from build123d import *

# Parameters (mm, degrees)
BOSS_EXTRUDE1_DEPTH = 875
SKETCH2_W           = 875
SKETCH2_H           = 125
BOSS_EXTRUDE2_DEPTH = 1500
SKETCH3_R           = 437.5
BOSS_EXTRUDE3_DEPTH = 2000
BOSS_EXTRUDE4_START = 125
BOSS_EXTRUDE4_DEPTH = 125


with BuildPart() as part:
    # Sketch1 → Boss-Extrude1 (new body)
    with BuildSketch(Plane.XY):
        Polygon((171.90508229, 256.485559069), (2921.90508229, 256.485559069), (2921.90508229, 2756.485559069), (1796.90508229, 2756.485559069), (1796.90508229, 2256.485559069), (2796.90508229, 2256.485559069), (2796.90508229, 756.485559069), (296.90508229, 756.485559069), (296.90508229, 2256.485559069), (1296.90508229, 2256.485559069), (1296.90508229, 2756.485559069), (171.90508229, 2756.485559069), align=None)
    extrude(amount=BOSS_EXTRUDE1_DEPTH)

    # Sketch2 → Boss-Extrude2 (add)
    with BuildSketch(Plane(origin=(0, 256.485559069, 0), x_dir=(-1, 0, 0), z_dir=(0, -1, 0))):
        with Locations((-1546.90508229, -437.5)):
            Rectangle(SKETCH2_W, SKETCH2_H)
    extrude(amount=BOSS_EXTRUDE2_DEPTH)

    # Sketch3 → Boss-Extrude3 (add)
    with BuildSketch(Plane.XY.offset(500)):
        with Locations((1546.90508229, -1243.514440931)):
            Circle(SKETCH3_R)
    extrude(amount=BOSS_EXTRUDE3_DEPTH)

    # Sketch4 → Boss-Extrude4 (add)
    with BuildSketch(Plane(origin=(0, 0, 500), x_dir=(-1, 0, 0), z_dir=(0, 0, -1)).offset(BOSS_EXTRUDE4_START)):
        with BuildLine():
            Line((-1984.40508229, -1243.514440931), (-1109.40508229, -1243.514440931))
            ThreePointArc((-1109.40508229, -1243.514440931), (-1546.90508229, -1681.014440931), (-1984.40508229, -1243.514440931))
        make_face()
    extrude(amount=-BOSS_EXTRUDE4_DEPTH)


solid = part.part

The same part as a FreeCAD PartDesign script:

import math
import FreeCAD as App
import Part
import Sketcher
from FreeCAD import Vector
Q = App.Units.Quantity


def add_polygon(sketch, points):
    """Adds a closed chain of lines whose ends are joined by coincident constraints."""
    first, n = sketch.GeometryCount, len(points)
    for a, b in zip(points, points[1:] + points[:1]):
        sketch.addGeometry(Part.LineSegment(App.Vector(*a, 0), App.Vector(*b, 0)), False)
    for i in range(n):
        sketch.addConstraint(Sketcher.Constraint("Coincident", first + i, 2, first + (i + 1) % n, 1))

doc = App.newDocument("Part")
body = doc.addObject("PartDesign::Body", "Body")

# Sketch on XY plane
sketch1 = body.newObject("Sketcher::SketchObject", "Sketch")
sketch1.AttachmentSupport = (doc.getObject("XY_Plane"), [""])
sketch1.MapMode = "FlatFace"
add_polygon(sketch1, [(172, 256), (2922, 256), (2922, 2756), (1797, 2756), (1797, 2256), (2797, 2256), (2797, 756), (297, 756), (297, 2256), (1297, 2256), (1297, 2756), (172, 2756)])  # lines 0-11
sketch1.addConstraint(Sketcher.Constraint("Horizontal", 0))
sketch1.addConstraint(Sketcher.Constraint("Vertical", 1))
sketch1.addConstraint(Sketcher.Constraint("Horizontal", 2))
sketch1.addConstraint(Sketcher.Constraint("Vertical", 3))
sketch1.addConstraint(Sketcher.Constraint("Horizontal", 4))
sketch1.addConstraint(Sketcher.Constraint("Vertical", 5))
sketch1.addConstraint(Sketcher.Constraint("Horizontal", 6))
sketch1.addConstraint(Sketcher.Constraint("Vertical", 7))
sketch1.addConstraint(Sketcher.Constraint("Horizontal", 8))
sketch1.addConstraint(Sketcher.Constraint("Vertical", 9))
sketch1.addConstraint(Sketcher.Constraint("Horizontal", 10))
sketch1.addConstraint(Sketcher.Constraint("Vertical", 11))
sketch1.addConstraint(Sketcher.Constraint("Horizontal", 4, 2, 7, 2))
sketch1.addConstraint(Sketcher.Constraint("Horizontal", 2, 2, 9, 2))
sketch1.addConstraint(Sketcher.Constraint("Equal", 4, 8))
sketch1.addConstraint(Sketcher.Constraint("Equal", 2, 10))
sketch1.addConstraint(Sketcher.Constraint("Equal", 6, 1))
sketch1.addConstraint(Sketcher.Constraint("DistanceX", 0, 1, 0, 2, Q("2750 mm")))
sketch1.addConstraint(Sketcher.Constraint("DistanceX", 2, 2, 2, 1, Q("1125 mm")))
sketch1.addConstraint(Sketcher.Constraint("DistanceX", 4, 1, 4, 2, Q("1000 mm")))
sketch1.addConstraint(Sketcher.Constraint("DistanceY", 3, 2, 3, 1, Q("500 mm")))
sketch1.addConstraint(Sketcher.Constraint("DistanceY", 5, 2, 5, 1, Q("1500 mm")))
sketch1.addConstraint(Sketcher.Constraint("DistanceY", -1, 1, 0, 2, Q("256.485559 mm")))
sketch1.addConstraint(Sketcher.Constraint("DistanceX", -1, 1, 0, 2, Q("2921.905082 mm")))
pad1 = body.newObject("PartDesign::Pad", "Pad")
pad1.Profile = sketch1
pad1.Length = 875

# Sketch on XZ plane
sketch2 = body.newObject("Sketcher::SketchObject", "Sketch001")
sketch2.AttachmentSupport = (doc.getObject("XZ_Plane"), [""])
sketch2.MapMode = "FlatFace"
sketch2.AttachmentOffset = App.Placement(Vector(0, 0, -256.485559), App.Rotation())
add_polygon(sketch2, [(1984, 375), (1984, 500), (1109, 500), (1109, 375)])  # lines 0-3
sketch2.addConstraint(Sketcher.Constraint("Vertical", 0))
sketch2.addConstraint(Sketcher.Constraint("Horizontal", 1))
sketch2.addConstraint(Sketcher.Constraint("Vertical", 2))
sketch2.addConstraint(Sketcher.Constraint("Horizontal", 3))
sketch2.addConstraint(Sketcher.Constraint("DistanceX", 1, 2, 1, 1, Q("875 mm")))
sketch2.addConstraint(Sketcher.Constraint("DistanceY", 0, 1, 0, 2, Q("125 mm")))
sketch2.addConstraint(Sketcher.Constraint("DistanceY", -1, 1, 0, 2, Q("500 mm")))
sketch2.addConstraint(Sketcher.Constraint("DistanceX", -1, 1, 0, 2, Q("1984.405082 mm")))
pad2 = body.newObject("PartDesign::Pad", "Pad001")
pad2.Profile = sketch2
pad2.Length = 1500

# Sketch on XY plane
sketch3 = body.newObject("Sketcher::SketchObject", "Sketch002")
sketch3.AttachmentSupport = (doc.getObject("XY_Plane"), [""])
sketch3.MapMode = "FlatFace"
sketch3.AttachmentOffset = App.Placement(Vector(0, 0, 500), App.Rotation())
sketch3.addGeometry(Part.Circle(Vector(1547, -1244, 0), Vector(0, 0, 1), 438), False)
sketch3.addConstraint(Sketcher.Constraint("Diameter", 0, Q("875 mm")))
sketch3.addConstraint(Sketcher.Constraint("DistanceY", 0, 3, -1, 1, Q("1243.514441 mm")))
sketch3.addConstraint(Sketcher.Constraint("DistanceX", -1, 1, 0, 3, Q("1546.905082 mm")))
pad3 = body.newObject("PartDesign::Pad", "Pad002")
pad3.Profile = sketch3
pad3.Length = 2000

# Sketch on XY plane
sketch4 = body.newObject("Sketcher::SketchObject", "Sketch003")
sketch4.AttachmentSupport = (doc.getObject("XY_Plane"), [""])
sketch4.MapMode = "FlatFace"
sketch4.AttachmentOffset = App.Placement(Vector(0, 0, 375), App.Rotation())
sketch4.addGeometry(Part.LineSegment(Vector(1109, -1244, 0), Vector(1984, -1244, 0)), False)
sketch4.addGeometry(Part.ArcOfCircle(Part.Circle(Vector(1547, -1244, 0), Vector(0, 0, 1), 438), math.radians(180), math.radians(360)), False)
sketch4.addConstraint(Sketcher.Constraint("Coincident", 0, 1, 1, 1))
sketch4.addConstraint(Sketcher.Constraint("Coincident", 1, 2, 0, 2))
sketch4.addConstraint(Sketcher.Constraint("Horizontal", 0))
sketch4.addConstraint(Sketcher.Constraint("Horizontal", 1, 3, 0, 1))
sketch4.addConstraint(Sketcher.Constraint("Radius", 1, Q("437.5 mm")))
sketch4.addConstraint(Sketcher.Constraint("DistanceY", 1, 3, -1, 1, Q("1243.514441 mm")))
sketch4.addConstraint(Sketcher.Constraint("DistanceX", -1, 1, 1, 3, Q("1546.905082 mm")))
pad4 = body.newObject("PartDesign::Pad", "Pad003")
pad4.Profile = sketch4
pad4.Length = 125

doc.recompute()
